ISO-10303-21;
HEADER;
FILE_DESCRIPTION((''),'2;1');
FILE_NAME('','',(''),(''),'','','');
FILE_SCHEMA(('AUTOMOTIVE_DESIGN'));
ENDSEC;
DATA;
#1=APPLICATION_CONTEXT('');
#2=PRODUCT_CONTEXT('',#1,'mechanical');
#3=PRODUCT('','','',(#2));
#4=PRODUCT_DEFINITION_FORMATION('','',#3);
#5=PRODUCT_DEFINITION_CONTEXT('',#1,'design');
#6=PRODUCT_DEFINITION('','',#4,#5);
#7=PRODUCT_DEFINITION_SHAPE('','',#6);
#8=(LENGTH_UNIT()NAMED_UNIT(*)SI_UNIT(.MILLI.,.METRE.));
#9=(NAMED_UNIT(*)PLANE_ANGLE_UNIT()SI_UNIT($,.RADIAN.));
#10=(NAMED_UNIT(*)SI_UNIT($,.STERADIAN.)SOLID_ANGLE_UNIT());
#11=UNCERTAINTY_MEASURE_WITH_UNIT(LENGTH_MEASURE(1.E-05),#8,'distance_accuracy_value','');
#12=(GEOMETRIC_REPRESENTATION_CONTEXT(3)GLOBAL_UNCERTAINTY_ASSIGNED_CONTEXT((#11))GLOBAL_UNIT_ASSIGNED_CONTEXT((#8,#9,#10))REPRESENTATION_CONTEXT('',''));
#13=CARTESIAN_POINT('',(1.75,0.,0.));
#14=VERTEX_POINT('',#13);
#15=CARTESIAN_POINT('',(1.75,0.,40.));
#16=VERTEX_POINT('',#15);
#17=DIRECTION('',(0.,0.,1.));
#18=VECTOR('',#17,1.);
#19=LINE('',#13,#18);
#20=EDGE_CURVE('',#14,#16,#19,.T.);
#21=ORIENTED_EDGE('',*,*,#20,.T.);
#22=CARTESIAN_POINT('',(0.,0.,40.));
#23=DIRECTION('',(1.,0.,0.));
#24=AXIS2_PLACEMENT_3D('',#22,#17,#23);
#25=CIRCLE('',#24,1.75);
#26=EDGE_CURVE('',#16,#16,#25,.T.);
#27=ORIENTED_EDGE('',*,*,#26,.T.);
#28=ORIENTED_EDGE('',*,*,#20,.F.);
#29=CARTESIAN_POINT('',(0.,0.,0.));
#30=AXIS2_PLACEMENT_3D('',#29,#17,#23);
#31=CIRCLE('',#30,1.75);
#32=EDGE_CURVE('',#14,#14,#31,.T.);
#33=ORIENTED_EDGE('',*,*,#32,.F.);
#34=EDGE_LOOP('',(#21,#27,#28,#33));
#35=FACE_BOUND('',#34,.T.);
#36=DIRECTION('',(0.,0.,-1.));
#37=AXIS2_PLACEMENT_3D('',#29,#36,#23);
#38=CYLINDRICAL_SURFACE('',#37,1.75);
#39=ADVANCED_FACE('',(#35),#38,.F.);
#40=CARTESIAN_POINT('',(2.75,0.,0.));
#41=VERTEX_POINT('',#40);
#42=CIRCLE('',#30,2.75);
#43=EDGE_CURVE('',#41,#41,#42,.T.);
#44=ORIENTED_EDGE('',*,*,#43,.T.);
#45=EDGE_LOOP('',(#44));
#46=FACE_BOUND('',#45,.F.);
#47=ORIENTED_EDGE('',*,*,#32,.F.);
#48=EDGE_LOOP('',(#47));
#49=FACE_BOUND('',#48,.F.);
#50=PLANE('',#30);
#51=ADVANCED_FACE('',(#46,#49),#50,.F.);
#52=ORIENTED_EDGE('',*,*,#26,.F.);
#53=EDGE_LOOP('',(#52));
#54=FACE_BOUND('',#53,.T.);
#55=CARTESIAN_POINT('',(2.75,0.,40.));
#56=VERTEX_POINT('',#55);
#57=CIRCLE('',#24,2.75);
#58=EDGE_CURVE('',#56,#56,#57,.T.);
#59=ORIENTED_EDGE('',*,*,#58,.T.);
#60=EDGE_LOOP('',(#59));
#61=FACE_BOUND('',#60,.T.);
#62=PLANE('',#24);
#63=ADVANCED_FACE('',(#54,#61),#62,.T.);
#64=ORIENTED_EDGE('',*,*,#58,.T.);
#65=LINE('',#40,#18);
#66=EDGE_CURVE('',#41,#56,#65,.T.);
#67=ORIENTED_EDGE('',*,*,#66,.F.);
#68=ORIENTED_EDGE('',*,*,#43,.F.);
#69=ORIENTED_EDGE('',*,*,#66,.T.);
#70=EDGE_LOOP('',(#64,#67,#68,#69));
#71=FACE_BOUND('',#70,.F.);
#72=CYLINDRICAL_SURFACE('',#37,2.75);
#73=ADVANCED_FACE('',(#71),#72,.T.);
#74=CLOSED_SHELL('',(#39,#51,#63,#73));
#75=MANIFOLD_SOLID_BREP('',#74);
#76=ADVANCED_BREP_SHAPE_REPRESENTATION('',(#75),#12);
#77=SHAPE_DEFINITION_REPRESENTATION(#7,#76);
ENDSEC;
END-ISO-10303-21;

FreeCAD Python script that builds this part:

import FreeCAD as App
import Part
import Sketcher

V = App.Vector

doc = App.newDocument("Part")
body = doc.addObject("PartDesign::Body", "Body")

# Sketch on XY plane
sketch1 = body.newObject("Sketcher::SketchObject", "Sketch")
sketch1.AttachmentSupport = (doc.getObject("XY_Plane"), [""])
sketch1.MapMode = "FlatFace"
sketch1.addGeometry([
    Part.Circle(V(0, 0, 0), V(0, 0, 1), 2.8),
    Part.Circle(V(0, 0, 0), V(0, 0, 1), 1.8),
], False)
sketch1.addConstraint([
    Sketcher.Constraint("Coincident", 0, 3, -1, 1),
    Sketcher.Constraint("Coincident", 1, 3, -1, 1),
    Sketcher.Constraint("Diameter", 1, 3.5),
    Sketcher.Constraint("Diameter", 0, 5.5),
])
pad1 = body.newObject("PartDesign::Pad", "Pad")
pad1.Profile = sketch1
pad1.Length = 40

doc.recompute()
